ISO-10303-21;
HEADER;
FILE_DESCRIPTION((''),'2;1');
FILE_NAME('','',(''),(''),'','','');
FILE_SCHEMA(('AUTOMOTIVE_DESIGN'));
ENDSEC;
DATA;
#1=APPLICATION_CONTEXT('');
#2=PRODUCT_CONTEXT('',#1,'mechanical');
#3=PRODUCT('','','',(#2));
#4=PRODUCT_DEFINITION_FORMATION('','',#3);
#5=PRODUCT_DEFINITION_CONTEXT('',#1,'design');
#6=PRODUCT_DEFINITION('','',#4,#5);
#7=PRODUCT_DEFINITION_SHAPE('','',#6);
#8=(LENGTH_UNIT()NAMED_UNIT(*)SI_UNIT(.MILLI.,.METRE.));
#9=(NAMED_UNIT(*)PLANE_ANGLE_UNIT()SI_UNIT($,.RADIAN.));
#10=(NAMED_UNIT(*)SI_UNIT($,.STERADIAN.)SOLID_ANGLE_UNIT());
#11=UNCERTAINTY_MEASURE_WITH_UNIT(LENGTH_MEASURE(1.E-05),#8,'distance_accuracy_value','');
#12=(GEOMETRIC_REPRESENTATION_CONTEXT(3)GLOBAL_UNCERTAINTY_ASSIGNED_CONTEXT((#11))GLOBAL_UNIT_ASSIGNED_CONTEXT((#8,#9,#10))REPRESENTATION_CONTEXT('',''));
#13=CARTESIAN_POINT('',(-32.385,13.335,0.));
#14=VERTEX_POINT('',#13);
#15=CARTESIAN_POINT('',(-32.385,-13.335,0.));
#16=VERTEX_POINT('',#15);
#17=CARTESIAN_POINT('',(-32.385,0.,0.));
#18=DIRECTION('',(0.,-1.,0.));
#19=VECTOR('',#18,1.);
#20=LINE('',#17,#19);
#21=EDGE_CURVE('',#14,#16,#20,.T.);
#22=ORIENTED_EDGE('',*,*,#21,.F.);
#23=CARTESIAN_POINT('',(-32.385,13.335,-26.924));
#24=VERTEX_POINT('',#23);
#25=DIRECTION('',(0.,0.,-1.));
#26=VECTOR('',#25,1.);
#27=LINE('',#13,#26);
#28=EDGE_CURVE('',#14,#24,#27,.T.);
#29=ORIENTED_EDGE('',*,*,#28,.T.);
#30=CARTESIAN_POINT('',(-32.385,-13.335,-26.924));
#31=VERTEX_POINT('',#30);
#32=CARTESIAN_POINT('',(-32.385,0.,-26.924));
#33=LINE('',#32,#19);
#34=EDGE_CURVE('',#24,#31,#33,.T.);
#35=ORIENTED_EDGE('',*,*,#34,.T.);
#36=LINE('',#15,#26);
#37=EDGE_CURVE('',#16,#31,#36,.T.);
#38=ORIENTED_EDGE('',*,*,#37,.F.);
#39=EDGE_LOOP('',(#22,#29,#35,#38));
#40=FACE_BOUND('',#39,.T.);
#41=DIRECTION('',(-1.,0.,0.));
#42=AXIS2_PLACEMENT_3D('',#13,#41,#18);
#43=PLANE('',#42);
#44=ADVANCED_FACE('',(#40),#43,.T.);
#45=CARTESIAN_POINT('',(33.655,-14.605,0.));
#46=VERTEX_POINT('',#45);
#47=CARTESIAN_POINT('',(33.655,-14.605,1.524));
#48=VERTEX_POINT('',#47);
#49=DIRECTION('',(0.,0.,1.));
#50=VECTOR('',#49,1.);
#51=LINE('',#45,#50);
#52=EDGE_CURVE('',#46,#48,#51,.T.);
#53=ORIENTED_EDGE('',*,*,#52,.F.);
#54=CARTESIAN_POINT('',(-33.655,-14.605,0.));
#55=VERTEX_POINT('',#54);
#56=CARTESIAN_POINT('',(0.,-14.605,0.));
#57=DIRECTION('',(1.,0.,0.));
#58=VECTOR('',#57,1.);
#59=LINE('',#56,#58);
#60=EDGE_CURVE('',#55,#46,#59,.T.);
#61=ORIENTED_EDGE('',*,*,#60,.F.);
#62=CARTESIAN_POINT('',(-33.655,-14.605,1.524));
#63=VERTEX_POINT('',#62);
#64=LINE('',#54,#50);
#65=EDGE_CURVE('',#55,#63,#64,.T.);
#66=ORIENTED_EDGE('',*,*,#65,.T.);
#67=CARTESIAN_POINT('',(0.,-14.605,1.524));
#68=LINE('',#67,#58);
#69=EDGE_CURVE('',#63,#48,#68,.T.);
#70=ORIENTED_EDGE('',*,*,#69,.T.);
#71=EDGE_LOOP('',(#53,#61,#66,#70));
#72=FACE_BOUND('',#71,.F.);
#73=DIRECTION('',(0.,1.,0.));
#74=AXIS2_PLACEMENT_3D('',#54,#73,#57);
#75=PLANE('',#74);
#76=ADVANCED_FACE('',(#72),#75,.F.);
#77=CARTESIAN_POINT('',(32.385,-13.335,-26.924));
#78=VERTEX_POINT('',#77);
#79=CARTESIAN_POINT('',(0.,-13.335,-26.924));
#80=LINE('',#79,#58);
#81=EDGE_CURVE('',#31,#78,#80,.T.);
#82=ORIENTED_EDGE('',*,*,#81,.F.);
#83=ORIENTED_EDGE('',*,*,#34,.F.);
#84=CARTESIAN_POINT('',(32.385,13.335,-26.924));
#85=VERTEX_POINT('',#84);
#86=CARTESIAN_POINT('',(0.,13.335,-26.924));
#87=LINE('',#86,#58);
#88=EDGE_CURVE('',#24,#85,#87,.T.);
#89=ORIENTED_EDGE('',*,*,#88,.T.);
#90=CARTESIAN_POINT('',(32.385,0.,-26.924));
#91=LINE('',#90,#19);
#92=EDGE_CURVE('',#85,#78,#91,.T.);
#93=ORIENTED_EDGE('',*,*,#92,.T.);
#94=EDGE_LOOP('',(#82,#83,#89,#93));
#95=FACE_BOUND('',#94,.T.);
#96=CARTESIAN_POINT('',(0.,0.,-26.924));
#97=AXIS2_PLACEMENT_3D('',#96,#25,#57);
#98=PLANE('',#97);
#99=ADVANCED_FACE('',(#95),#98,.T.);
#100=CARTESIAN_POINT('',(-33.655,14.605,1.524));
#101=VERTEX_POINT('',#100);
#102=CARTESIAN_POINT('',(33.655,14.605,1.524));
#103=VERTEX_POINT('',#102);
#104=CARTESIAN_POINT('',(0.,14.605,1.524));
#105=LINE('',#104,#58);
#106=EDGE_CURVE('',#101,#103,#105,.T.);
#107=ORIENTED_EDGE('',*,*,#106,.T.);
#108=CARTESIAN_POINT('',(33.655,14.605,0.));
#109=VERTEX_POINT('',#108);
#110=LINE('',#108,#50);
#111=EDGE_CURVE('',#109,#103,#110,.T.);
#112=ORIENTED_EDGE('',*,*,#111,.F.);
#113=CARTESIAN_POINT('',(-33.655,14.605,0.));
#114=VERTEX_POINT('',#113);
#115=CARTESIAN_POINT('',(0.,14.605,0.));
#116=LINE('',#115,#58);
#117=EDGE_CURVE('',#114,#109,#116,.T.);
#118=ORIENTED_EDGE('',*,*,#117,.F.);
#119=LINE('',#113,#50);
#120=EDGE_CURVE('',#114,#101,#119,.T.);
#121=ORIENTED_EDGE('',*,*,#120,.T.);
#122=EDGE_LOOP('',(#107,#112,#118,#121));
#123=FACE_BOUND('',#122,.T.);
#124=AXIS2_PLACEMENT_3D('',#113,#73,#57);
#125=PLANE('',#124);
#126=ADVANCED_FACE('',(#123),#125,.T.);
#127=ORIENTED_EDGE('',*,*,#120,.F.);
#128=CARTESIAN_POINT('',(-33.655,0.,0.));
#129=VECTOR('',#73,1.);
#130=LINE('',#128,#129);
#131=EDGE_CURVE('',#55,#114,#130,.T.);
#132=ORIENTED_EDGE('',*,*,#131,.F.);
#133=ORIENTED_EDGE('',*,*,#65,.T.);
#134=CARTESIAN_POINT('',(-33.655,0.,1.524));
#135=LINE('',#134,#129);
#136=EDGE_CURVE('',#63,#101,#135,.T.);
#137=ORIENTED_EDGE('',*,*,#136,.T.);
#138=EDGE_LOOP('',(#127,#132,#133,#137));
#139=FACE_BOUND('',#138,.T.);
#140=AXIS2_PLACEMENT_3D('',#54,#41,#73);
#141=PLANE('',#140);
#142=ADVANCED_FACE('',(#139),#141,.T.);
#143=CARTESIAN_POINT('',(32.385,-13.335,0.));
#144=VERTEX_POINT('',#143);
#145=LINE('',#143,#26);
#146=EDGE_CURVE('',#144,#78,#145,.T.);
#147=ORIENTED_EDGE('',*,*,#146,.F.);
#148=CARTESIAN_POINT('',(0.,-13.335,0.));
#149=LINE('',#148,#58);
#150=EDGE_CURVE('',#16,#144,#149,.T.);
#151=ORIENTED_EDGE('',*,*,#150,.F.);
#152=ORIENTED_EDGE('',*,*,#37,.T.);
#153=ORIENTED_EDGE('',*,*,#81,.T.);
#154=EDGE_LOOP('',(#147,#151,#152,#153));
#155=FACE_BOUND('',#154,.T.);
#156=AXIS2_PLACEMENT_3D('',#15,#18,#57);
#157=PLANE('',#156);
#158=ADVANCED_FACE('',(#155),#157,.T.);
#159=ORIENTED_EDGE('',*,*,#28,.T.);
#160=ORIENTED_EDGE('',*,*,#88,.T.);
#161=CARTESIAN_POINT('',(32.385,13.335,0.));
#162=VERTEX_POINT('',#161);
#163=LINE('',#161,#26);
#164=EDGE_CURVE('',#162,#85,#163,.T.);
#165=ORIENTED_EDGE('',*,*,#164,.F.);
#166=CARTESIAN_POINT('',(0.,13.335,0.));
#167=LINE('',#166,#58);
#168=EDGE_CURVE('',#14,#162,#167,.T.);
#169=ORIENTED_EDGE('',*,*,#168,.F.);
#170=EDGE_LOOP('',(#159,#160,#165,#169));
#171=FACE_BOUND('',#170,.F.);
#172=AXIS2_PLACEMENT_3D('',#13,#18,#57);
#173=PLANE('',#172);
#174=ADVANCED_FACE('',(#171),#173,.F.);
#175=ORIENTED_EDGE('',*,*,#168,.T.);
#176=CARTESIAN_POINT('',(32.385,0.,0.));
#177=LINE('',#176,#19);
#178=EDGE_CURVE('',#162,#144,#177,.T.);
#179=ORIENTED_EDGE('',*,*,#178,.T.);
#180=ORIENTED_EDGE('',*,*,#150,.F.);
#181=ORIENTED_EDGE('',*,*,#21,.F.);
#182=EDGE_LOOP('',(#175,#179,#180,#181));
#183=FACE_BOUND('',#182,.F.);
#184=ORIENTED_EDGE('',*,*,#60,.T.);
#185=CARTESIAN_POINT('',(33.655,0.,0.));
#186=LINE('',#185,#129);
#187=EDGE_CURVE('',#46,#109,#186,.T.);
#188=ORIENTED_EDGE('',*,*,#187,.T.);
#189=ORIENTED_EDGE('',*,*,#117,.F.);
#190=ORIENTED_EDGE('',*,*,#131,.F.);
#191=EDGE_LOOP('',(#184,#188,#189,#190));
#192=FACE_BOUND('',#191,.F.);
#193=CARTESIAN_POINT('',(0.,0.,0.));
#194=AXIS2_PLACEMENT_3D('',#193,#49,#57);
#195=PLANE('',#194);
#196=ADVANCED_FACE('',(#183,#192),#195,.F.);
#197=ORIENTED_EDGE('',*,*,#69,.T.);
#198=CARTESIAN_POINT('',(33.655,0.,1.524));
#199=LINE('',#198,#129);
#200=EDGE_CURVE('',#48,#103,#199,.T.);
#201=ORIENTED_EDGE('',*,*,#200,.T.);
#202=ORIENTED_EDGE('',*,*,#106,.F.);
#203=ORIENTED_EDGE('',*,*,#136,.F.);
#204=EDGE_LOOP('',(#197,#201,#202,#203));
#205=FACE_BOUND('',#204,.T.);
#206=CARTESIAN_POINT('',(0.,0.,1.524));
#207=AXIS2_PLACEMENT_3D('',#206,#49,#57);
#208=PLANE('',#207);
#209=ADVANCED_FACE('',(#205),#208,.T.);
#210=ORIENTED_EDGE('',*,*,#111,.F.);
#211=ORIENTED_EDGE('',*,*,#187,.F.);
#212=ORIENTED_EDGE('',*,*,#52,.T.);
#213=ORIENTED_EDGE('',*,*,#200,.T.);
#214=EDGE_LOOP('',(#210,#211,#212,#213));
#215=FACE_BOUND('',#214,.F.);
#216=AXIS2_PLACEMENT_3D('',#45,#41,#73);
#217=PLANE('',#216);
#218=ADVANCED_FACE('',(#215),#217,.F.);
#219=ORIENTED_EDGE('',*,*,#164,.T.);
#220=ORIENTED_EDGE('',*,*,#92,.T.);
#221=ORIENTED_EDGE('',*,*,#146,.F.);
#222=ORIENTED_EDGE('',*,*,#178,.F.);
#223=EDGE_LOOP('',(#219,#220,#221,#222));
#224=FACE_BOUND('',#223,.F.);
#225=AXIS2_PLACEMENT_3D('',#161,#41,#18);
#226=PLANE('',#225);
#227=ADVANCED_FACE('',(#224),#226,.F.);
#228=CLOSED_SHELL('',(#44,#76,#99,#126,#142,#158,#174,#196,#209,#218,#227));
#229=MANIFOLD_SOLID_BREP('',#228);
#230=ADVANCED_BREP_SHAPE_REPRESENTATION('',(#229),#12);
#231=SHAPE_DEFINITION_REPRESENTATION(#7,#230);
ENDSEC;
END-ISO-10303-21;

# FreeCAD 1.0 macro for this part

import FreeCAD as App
import Part
import Sketcher
from FreeCAD import Vector
Q = App.Units.Quantity


def add_polygon(sketch, points):
    """Adds a closed chain of lines whose ends are joined by coincident constraints."""
    first, n = sketch.GeometryCount, len(points)
    for a, b in zip(points, points[1:] + points[:1]):
        sketch.addGeometry(Part.LineSegment(App.Vector(*a, 0), App.Vector(*b, 0)), False)
    for i in range(n):
        sketch.addConstraint(Sketcher.Constraint("Coincident", first + i, 2, first + (i + 1) % n, 1))

doc = App.newDocument("Part")
params = doc.addObject("Spreadsheet::Sheet", "Params")
for row, (alias, value) in enumerate([
    ("sketch1_width", "2.65 in"),
    ("sketch1_height", "1.15 in"),
    ("pad1_length", "0.06 in"),
    ("sketch2_width", "2.55 in"),
    ("sketch2_height", "1.05 in"),
    ("pad2_length", "1.06 in"),
], start=1):
    params.set(f"A{row}", alias)
    params.set(f"B{row}", "=" + value)
    params.setAlias(f"B{row}", alias)

body = doc.addObject("PartDesign::Body", "Body")

sketch1 = body.newObject("Sketcher::SketchObject", "Sketch")
sketch1.AttachmentSupport = (doc.getObject("XY_Plane"), [""])
sketch1.MapMode = "FlatFace"
add_polygon(sketch1, [(-34, 15), (-34, -15), (34, -15), (34, 15)])
sketch1.addConstraint(Sketcher.Constraint("Vertical", 0))
sketch1.addConstraint(Sketcher.Constraint("Horizontal", 1))
sketch1.addConstraint(Sketcher.Constraint("Vertical", 2))
sketch1.addConstraint(Sketcher.Constraint("Horizontal", 3))
sketch1.addConstraint(Sketcher.Constraint("Symmetric", 0, 2, 2, 2, -1, 1))
sketch1.addConstraint(Sketcher.Constraint("DistanceX", 1, 1, 1, 2, Q("2.65 in")))
sketch1.addConstraint(Sketcher.Constraint("DistanceY", 0, 2, 0, 1, Q("1.15 in")))
sketch1.setExpression("Constraints[9]", "Params.sketch1_width")
sketch1.setExpression("Constraints[10]", "Params.sketch1_height")
pad1 = body.newObject("PartDesign::Pad", "Pad")
pad1.Profile = sketch1
pad1.setExpression("Length", "Params.pad1_length")

sketch2 = body.newObject("Sketcher::SketchObject", "Sketch001")
sketch2.AttachmentSupport = (doc.getObject("XY_Plane"), [""])
sketch2.MapMode = "FlatFace"
add_polygon(sketch2, [(-32, -13), (-32, 13), (32, 13), (32, -13)])
sketch2.addConstraint(Sketcher.Constraint("Vertical", 0))
sketch2.addConstraint(Sketcher.Constraint("Horizontal", 1))
sketch2.addConstraint(Sketcher.Constraint("Vertical", 2))
sketch2.addConstraint(Sketcher.Constraint("Horizontal", 3))
sketch2.addConstraint(Sketcher.Constraint("Symmetric", 0, 2, 2, 2, -1, 1))
sketch2.addConstraint(Sketcher.Constraint("DistanceX", 1, 1, 1, 2, Q("2.55 in")))
sketch2.addConstraint(Sketcher.Constraint("DistanceY", 0, 1, 0, 2, Q("1.05 in")))
sketch2.setExpression("Constraints[9]", "Params.sketch2_width")
sketch2.setExpression("Constraints[10]", "Params.sketch2_height")
pad2 = body.newObject("PartDesign::Pad", "Pad001")
pad2.Profile = sketch2
pad2.setExpression("Length", "Params.pad2_length")
pad2.Reversed = True

doc.recompute()
